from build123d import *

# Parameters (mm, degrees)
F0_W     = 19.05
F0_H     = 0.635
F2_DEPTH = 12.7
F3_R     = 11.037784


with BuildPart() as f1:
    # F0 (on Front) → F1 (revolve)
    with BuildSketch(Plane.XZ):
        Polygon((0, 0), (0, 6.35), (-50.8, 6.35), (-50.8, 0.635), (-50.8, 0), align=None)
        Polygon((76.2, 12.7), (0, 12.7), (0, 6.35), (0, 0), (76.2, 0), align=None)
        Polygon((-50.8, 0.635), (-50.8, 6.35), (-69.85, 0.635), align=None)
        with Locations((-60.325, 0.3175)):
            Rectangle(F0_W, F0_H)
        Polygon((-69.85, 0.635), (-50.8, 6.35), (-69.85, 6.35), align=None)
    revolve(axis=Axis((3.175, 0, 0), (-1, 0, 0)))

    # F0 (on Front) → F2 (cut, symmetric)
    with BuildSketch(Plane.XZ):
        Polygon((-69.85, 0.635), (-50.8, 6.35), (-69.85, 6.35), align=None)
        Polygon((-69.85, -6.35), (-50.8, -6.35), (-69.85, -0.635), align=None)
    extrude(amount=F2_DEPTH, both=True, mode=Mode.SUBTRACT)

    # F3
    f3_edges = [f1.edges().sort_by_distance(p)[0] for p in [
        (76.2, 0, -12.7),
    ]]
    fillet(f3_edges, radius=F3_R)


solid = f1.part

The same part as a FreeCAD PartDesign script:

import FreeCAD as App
import Part
import Sketcher
from FreeCAD import Vector
Q = App.Units.Quantity


def edges_at(feature, points):
    """Names of the edges that pass closest to the given points."""
    edges = feature.Shape.Edges
    near = lambda p: min(range(len(edges)), key=lambda i: edges[i].distToShape(Part.Vertex(*p))[0])
    return sorted({f"Edge{near(p) + 1}" for p in points})


def add_polygon(sketch, points):
    """Adds a closed chain of lines whose ends are joined by coincident constraints."""
    first, n = sketch.GeometryCount, len(points)
    for a, b in zip(points, points[1:] + points[:1]):
        sketch.addGeometry(Part.LineSegment(App.Vector(*a, 0), App.Vector(*b, 0)), False)
    for i in range(n):
        sketch.addConstraint(Sketcher.Constraint("Coincident", first + i, 2, first + (i + 1) % n, 1))

doc = App.newDocument("Part")
body = doc.addObject("PartDesign::Body", "Body")

sketch1 = body.newObject("Sketcher::SketchObject", "Sketch")
sketch1.AttachmentSupport = (doc.getObject("XZ_Plane"), [""])
sketch1.MapMode = "FlatFace"
add_polygon(sketch1, [(0, 6.35), (-69.85, 6.35), (-69.85, 0), (76.2, 0), (76.2, 12.7), (0, 12.7)])
sketch1.addConstraint(Sketcher.Constraint("Horizontal", 0))
sketch1.addConstraint(Sketcher.Constraint("Vertical", 1))
sketch1.addConstraint(Sketcher.Constraint("Horizontal", 2))
sketch1.addConstraint(Sketcher.Constraint("Vertical", 3))
sketch1.addConstraint(Sketcher.Constraint("Horizontal", 4))
sketch1.addConstraint(Sketcher.Constraint("Vertical", 5))
sketch1.addConstraint(Sketcher.Constraint("PointOnObject", 1, 2, -1))
sketch1.addConstraint(Sketcher.Constraint("PointOnObject", 4, 2, -2))
sketch1.addConstraint(Sketcher.Constraint("Equal", 1, 5))
sketch1.addConstraint(Sketcher.Constraint("DistanceX", 4, 2, 4, 1, Q("3 in")))
sketch1.addConstraint(Sketcher.Constraint("DistanceY", 3, 1, 3, 2, Q("0.5 in")))
sketch1.addConstraint(Sketcher.Constraint("DistanceX", 0, 2, 0, 1, Q("2.75 in")))
revolution = body.newObject("PartDesign::Revolution", "Revolution")
revolution.Profile = sketch1
revolution.ReferenceAxis = (sketch1, ["H_Axis"])
revolution.Angle = 360

sketch2 = body.newObject("Sketcher::SketchObject", "Sketch001")
sketch2.AttachmentSupport = (doc.getObject("XZ_Plane"), [""])
sketch2.MapMode = "FlatFace"
add_polygon(sketch2, [(-69.85, 0.635), (-50.8, 6.35), (-69.85, 6.35)])
add_polygon(sketch2, [(-69.85, -6.35), (-50.8, -6.35), (-69.85, -0.635)])
sketch2.addConstraint(Sketcher.Constraint("Horizontal", 1))
sketch2.addConstraint(Sketcher.Constraint("Vertical", 2))
sketch2.addConstraint(Sketcher.Constraint("Horizontal", 3))
sketch2.addConstraint(Sketcher.Constraint("Vertical", 5))
sketch2.addConstraint(Sketcher.Constraint("Symmetric", 0, 2, 3, 2, -1))
sketch2.addConstraint(Sketcher.Constraint("Symmetric", 2, 2, 4, 2, -1))
sketch2.addConstraint(Sketcher.Constraint("DistanceX", 0, 2, -1, 1, Q("2 in")))
sketch2.addConstraint(Sketcher.Constraint("DistanceX", 1, 2, 1, 1, Q("0.75 in")))
sketch2.addConstraint(Sketcher.Constraint("DistanceY", 3, 2, 0, 2, Q("0.5 in")))
sketch2.addConstraint(Sketcher.Constraint("DistanceY", 2, 2, 2, 1, Q("0.225 in")))
pocket1 = body.newObject("PartDesign::Pocket", "Pocket")
pocket1.Profile = sketch2
pocket1.Length = Q("1 in")
pocket1.Midplane = True
doc.recompute()

fillet = body.newObject("PartDesign::Fillet", "Fillet")
fillet.Base = (pocket1, edges_at(pocket1, [(76.2, 0, -12.7)]))
fillet.Radius = 11.037784

doc.recompute()
